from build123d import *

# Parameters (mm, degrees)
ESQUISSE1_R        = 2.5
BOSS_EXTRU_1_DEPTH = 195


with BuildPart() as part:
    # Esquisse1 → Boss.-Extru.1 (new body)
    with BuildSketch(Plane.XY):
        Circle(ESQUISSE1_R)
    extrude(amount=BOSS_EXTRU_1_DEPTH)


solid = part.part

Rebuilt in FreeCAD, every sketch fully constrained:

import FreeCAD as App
import Part
import Sketcher

V = App.Vector

doc = App.newDocument("Part")
body = doc.addObject("PartDesign::Body", "Body")

# Sketch on XY plane
sketch1 = doc.addObject("Sketcher::SketchObject", "Sketch")
body.addObject(sketch1)
sketch1.AttachmentSupport = (doc.XY_Plane, [""])
sketch1.MapMode = "FlatFace"
sketch1.addGeometry(Part.Circle(V(0, 0, 0), V(0, 0, 1), 2.5), False)
sketch1.addConstraint(Sketcher.Constraint("Coincident", 0, 3, -1, 1))
sketch1.addConstraint(Sketcher.Constraint("Diameter", 0, 5.0))
pad1 = doc.addObject("PartDesign::Pad", "Pad")
body.addObject(pad1)
pad1.Profile = sketch1
pad1.Length = 195

doc.recompute()
